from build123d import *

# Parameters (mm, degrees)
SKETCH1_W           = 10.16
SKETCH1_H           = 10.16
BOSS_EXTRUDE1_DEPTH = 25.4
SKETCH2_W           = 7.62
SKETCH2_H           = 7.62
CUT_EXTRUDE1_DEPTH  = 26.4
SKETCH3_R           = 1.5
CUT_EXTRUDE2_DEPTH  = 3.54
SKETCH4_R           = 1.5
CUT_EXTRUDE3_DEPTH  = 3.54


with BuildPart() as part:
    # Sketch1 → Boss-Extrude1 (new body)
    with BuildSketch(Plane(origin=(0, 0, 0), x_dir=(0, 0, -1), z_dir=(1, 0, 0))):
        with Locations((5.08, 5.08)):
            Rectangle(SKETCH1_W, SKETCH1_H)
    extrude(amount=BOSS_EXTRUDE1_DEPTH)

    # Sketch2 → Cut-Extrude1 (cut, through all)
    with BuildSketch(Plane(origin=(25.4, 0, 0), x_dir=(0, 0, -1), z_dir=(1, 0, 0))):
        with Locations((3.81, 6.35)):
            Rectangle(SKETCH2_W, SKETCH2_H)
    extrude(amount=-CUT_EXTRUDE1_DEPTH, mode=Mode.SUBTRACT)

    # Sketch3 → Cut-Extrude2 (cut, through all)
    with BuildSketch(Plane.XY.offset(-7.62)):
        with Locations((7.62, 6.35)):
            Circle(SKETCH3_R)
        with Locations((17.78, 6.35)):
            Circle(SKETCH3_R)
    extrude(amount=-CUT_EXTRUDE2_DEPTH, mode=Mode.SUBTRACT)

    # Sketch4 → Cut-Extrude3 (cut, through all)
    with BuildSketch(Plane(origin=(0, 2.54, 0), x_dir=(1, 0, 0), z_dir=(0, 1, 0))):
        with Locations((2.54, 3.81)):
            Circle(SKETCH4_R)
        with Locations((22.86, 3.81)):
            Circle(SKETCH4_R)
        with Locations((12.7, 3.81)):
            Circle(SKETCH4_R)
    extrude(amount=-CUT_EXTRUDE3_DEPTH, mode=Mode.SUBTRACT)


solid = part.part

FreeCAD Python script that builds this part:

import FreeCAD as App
import Part
import Sketcher

V = App.Vector
Q = App.Units.Quantity

doc = App.newDocument("Part")
body = doc.addObject("PartDesign::Body", "Body")

# Sketch on YZ plane
sketch1 = doc.addObject("Sketcher::SketchObject", "Sketch")
body.addObject(sketch1)
sketch1.AttachmentSupport = (doc.YZ_Plane, [""])
sketch1.MapMode = "FlatFace"
sketch1.addGeometry(Part.LineSegment(V(10, 0, 0), V(0, 0, 0)), False)
sketch1.addGeometry(Part.LineSegment(V(0, 0, 0), V(0, -10, 0)), False)
sketch1.addGeometry(Part.LineSegment(V(0, -10, 0), V(10, -10, 0)), False)
sketch1.addGeometry(Part.LineSegment(V(10, -10, 0), V(10, 0, 0)), False)
sketch1.addConstraint(Sketcher.Constraint("Coincident", 0, 2, 1, 1))
sketch1.addConstraint(Sketcher.Constraint("Coincident", 1, 2, 2, 1))
sketch1.addConstraint(Sketcher.Constraint("Coincident", 2, 2, 3, 1))
sketch1.addConstraint(Sketcher.Constraint("Coincident", 3, 2, 0, 1))
sketch1.addConstraint(Sketcher.Constraint("Horizontal", 0))
sketch1.addConstraint(Sketcher.Constraint("Vertical", 1))
sketch1.addConstraint(Sketcher.Constraint("Horizontal", 2))
sketch1.addConstraint(Sketcher.Constraint("Vertical", 3))
sketch1.addConstraint(Sketcher.Constraint("Coincident", 0, 2, -1, 1))
sketch1.addConstraint(Sketcher.Constraint("Equal", 2, 1))
sketch1.addConstraint(Sketcher.Constraint("DistanceX", 0, 2, 0, 1, Q("0.4 in")))
pad1 = doc.addObject("PartDesign::Pad", "Pad")
body.addObject(pad1)
pad1.Profile = sketch1
pad1.Length = Q("1 in")

# Sketch on YZ plane
sketch2 = doc.addObject("Sketcher::SketchObject", "Sketch001")
body.addObject(sketch2)
sketch2.AttachmentSupport = (doc.YZ_Plane, [""])
sketch2.MapMode = "FlatFace"
sketch2.AttachmentOffset = App.Placement(V(0, 0, 1 * 25.4), App.Rotation())
sketch2.addGeometry(Part.LineSegment(V(10, 0, 0), V(3, 0, 0)), False)
sketch2.addGeometry(Part.LineSegment(V(3, 0, 0), V(3, -8, 0)), False)
sketch2.addGeometry(Part.LineSegment(V(3, -8, 0), V(10, -8, 0)), False)
sketch2.addGeometry(Part.LineSegment(V(10, -8, 0), V(10, 0, 0)), False)
sketch2.addConstraint(Sketcher.Constraint("Coincident", 0, 2, 1, 1))
sketch2.addConstraint(Sketcher.Constraint("Coincident", 1, 2, 2, 1))
sketch2.addConstraint(Sketcher.Constraint("Coincident", 2, 2, 3, 1))
sketch2.addConstraint(Sketcher.Constraint("Coincident", 3, 2, 0, 1))
sketch2.addConstraint(Sketcher.Constraint("Horizontal", 0))
sketch2.addConstraint(Sketcher.Constraint("Vertical", 1))
sketch2.addConstraint(Sketcher.Constraint("Horizontal", 2))
sketch2.addConstraint(Sketcher.Constraint("Vertical", 3))
sketch2.addConstraint(Sketcher.Constraint("PointOnObject", 0, 2, -1))
sketch2.addConstraint(Sketcher.Constraint("Equal", 2, 1))
sketch2.addConstraint(Sketcher.Constraint("DistanceX", 0, 2, 0, 1, Q("0.3 in")))
sketch2.addConstraint(Sketcher.Constraint("DistanceX", -1, 1, 0, 2, Q("0.1 in")))
pocket1 = doc.addObject("PartDesign::Pocket", "Pocket")
body.addObject(pocket1)
pocket1.Profile = sketch2
pocket1.Type = "ThroughAll"

# Sketch on XY plane
sketch3 = doc.addObject("Sketcher::SketchObject", "Sketch002")
body.addObject(sketch3)
sketch3.AttachmentSupport = (doc.XY_Plane, [""])
sketch3.MapMode = "FlatFace"
sketch3.AttachmentOffset = App.Placement(V(0, 0, -0.3 * 25.4), App.Rotation())
sketch3.addGeometry(Part.Circle(V(7.6, 6.3, 0), V(0, 0, 1), 1.5), False)
sketch3.addGeometry(Part.Circle(V(17.8, 6.3, 0), V(0, 0, 1), 1.5), False)
sketch3.addConstraint(Sketcher.Constraint("Equal", 0, 1))
sketch3.addConstraint(Sketcher.Constraint("Horizontal", 0, 3, 1, 3))
sketch3.addConstraint(Sketcher.Constraint("DistanceX", -1, 1, 0, 3, Q("0.3 in")))
sketch3.addConstraint(Sketcher.Constraint("DistanceX", -1, 1, 1, 3, Q("0.7 in")))
sketch3.addConstraint(Sketcher.Constraint("Diameter", 0, 3.0))
sketch3.addConstraint(Sketcher.Constraint("DistanceY", -1, 1, 0, 3, Q("0.25 in")))
pocket2 = doc.addObject("PartDesign::Pocket", "Pocket001")
body.addObject(pocket2)
pocket2.Profile = sketch3
pocket2.Type = "ThroughAll"

# Sketch on XZ plane
sketch4 = doc.addObject("Sketcher::SketchObject", "Sketch003")
body.addObject(sketch4)
sketch4.AttachmentSupport = (doc.XZ_Plane, [""])
sketch4.MapMode = "FlatFace"
sketch4.AttachmentOffset = App.Placement(V(0, 0, -0.1 * 25.4), App.Rotation())
sketch4.addGeometry(Part.Circle(V(2.5, -3.8, 0), V(0, 0, 1), 1.5), False)
sketch4.addGeometry(Part.Circle(V(22.9, -3.8, 0), V(0, 0, 1), 1.5), False)
sketch4.addGeometry(Part.Circle(V(12.7, -3.8, 0), V(0, 0, 1), 1.5), False)
sketch4.addConstraint(Sketcher.Constraint("Equal", 0, 1))
sketch4.addConstraint(Sketcher.Constraint("Equal", 1, 2))
sketch4.addConstraint(Sketcher.Constraint("Horizontal", 0, 3, 1, 3))
sketch4.addConstraint(Sketcher.Constraint("Horizontal", 1, 3, 2, 3))
sketch4.addConstraint(Sketcher.Constraint("DistanceX", -1, 1, 0, 3, Q("0.1 in")))
sketch4.addConstraint(Sketcher.Constraint("DistanceX", -1, 1, 1, 3, Q("0.9 in")))
sketch4.addConstraint(Sketcher.Constraint("DistanceX", -1, 1, 2, 3, Q("0.5 in")))
sketch4.addConstraint(Sketcher.Constraint("Diameter", 0, 3.0))
sketch4.addConstraint(Sketcher.Constraint("DistanceY", 0, 3, -1, 1, Q("0.15 in")))
pocket3 = doc.addObject("PartDesign::Pocket", "Pocket002")
body.addObject(pocket3)
pocket3.Profile = sketch4
pocket3.Type = "ThroughAll"
pocket3.Reversed = True

doc.recompute()
